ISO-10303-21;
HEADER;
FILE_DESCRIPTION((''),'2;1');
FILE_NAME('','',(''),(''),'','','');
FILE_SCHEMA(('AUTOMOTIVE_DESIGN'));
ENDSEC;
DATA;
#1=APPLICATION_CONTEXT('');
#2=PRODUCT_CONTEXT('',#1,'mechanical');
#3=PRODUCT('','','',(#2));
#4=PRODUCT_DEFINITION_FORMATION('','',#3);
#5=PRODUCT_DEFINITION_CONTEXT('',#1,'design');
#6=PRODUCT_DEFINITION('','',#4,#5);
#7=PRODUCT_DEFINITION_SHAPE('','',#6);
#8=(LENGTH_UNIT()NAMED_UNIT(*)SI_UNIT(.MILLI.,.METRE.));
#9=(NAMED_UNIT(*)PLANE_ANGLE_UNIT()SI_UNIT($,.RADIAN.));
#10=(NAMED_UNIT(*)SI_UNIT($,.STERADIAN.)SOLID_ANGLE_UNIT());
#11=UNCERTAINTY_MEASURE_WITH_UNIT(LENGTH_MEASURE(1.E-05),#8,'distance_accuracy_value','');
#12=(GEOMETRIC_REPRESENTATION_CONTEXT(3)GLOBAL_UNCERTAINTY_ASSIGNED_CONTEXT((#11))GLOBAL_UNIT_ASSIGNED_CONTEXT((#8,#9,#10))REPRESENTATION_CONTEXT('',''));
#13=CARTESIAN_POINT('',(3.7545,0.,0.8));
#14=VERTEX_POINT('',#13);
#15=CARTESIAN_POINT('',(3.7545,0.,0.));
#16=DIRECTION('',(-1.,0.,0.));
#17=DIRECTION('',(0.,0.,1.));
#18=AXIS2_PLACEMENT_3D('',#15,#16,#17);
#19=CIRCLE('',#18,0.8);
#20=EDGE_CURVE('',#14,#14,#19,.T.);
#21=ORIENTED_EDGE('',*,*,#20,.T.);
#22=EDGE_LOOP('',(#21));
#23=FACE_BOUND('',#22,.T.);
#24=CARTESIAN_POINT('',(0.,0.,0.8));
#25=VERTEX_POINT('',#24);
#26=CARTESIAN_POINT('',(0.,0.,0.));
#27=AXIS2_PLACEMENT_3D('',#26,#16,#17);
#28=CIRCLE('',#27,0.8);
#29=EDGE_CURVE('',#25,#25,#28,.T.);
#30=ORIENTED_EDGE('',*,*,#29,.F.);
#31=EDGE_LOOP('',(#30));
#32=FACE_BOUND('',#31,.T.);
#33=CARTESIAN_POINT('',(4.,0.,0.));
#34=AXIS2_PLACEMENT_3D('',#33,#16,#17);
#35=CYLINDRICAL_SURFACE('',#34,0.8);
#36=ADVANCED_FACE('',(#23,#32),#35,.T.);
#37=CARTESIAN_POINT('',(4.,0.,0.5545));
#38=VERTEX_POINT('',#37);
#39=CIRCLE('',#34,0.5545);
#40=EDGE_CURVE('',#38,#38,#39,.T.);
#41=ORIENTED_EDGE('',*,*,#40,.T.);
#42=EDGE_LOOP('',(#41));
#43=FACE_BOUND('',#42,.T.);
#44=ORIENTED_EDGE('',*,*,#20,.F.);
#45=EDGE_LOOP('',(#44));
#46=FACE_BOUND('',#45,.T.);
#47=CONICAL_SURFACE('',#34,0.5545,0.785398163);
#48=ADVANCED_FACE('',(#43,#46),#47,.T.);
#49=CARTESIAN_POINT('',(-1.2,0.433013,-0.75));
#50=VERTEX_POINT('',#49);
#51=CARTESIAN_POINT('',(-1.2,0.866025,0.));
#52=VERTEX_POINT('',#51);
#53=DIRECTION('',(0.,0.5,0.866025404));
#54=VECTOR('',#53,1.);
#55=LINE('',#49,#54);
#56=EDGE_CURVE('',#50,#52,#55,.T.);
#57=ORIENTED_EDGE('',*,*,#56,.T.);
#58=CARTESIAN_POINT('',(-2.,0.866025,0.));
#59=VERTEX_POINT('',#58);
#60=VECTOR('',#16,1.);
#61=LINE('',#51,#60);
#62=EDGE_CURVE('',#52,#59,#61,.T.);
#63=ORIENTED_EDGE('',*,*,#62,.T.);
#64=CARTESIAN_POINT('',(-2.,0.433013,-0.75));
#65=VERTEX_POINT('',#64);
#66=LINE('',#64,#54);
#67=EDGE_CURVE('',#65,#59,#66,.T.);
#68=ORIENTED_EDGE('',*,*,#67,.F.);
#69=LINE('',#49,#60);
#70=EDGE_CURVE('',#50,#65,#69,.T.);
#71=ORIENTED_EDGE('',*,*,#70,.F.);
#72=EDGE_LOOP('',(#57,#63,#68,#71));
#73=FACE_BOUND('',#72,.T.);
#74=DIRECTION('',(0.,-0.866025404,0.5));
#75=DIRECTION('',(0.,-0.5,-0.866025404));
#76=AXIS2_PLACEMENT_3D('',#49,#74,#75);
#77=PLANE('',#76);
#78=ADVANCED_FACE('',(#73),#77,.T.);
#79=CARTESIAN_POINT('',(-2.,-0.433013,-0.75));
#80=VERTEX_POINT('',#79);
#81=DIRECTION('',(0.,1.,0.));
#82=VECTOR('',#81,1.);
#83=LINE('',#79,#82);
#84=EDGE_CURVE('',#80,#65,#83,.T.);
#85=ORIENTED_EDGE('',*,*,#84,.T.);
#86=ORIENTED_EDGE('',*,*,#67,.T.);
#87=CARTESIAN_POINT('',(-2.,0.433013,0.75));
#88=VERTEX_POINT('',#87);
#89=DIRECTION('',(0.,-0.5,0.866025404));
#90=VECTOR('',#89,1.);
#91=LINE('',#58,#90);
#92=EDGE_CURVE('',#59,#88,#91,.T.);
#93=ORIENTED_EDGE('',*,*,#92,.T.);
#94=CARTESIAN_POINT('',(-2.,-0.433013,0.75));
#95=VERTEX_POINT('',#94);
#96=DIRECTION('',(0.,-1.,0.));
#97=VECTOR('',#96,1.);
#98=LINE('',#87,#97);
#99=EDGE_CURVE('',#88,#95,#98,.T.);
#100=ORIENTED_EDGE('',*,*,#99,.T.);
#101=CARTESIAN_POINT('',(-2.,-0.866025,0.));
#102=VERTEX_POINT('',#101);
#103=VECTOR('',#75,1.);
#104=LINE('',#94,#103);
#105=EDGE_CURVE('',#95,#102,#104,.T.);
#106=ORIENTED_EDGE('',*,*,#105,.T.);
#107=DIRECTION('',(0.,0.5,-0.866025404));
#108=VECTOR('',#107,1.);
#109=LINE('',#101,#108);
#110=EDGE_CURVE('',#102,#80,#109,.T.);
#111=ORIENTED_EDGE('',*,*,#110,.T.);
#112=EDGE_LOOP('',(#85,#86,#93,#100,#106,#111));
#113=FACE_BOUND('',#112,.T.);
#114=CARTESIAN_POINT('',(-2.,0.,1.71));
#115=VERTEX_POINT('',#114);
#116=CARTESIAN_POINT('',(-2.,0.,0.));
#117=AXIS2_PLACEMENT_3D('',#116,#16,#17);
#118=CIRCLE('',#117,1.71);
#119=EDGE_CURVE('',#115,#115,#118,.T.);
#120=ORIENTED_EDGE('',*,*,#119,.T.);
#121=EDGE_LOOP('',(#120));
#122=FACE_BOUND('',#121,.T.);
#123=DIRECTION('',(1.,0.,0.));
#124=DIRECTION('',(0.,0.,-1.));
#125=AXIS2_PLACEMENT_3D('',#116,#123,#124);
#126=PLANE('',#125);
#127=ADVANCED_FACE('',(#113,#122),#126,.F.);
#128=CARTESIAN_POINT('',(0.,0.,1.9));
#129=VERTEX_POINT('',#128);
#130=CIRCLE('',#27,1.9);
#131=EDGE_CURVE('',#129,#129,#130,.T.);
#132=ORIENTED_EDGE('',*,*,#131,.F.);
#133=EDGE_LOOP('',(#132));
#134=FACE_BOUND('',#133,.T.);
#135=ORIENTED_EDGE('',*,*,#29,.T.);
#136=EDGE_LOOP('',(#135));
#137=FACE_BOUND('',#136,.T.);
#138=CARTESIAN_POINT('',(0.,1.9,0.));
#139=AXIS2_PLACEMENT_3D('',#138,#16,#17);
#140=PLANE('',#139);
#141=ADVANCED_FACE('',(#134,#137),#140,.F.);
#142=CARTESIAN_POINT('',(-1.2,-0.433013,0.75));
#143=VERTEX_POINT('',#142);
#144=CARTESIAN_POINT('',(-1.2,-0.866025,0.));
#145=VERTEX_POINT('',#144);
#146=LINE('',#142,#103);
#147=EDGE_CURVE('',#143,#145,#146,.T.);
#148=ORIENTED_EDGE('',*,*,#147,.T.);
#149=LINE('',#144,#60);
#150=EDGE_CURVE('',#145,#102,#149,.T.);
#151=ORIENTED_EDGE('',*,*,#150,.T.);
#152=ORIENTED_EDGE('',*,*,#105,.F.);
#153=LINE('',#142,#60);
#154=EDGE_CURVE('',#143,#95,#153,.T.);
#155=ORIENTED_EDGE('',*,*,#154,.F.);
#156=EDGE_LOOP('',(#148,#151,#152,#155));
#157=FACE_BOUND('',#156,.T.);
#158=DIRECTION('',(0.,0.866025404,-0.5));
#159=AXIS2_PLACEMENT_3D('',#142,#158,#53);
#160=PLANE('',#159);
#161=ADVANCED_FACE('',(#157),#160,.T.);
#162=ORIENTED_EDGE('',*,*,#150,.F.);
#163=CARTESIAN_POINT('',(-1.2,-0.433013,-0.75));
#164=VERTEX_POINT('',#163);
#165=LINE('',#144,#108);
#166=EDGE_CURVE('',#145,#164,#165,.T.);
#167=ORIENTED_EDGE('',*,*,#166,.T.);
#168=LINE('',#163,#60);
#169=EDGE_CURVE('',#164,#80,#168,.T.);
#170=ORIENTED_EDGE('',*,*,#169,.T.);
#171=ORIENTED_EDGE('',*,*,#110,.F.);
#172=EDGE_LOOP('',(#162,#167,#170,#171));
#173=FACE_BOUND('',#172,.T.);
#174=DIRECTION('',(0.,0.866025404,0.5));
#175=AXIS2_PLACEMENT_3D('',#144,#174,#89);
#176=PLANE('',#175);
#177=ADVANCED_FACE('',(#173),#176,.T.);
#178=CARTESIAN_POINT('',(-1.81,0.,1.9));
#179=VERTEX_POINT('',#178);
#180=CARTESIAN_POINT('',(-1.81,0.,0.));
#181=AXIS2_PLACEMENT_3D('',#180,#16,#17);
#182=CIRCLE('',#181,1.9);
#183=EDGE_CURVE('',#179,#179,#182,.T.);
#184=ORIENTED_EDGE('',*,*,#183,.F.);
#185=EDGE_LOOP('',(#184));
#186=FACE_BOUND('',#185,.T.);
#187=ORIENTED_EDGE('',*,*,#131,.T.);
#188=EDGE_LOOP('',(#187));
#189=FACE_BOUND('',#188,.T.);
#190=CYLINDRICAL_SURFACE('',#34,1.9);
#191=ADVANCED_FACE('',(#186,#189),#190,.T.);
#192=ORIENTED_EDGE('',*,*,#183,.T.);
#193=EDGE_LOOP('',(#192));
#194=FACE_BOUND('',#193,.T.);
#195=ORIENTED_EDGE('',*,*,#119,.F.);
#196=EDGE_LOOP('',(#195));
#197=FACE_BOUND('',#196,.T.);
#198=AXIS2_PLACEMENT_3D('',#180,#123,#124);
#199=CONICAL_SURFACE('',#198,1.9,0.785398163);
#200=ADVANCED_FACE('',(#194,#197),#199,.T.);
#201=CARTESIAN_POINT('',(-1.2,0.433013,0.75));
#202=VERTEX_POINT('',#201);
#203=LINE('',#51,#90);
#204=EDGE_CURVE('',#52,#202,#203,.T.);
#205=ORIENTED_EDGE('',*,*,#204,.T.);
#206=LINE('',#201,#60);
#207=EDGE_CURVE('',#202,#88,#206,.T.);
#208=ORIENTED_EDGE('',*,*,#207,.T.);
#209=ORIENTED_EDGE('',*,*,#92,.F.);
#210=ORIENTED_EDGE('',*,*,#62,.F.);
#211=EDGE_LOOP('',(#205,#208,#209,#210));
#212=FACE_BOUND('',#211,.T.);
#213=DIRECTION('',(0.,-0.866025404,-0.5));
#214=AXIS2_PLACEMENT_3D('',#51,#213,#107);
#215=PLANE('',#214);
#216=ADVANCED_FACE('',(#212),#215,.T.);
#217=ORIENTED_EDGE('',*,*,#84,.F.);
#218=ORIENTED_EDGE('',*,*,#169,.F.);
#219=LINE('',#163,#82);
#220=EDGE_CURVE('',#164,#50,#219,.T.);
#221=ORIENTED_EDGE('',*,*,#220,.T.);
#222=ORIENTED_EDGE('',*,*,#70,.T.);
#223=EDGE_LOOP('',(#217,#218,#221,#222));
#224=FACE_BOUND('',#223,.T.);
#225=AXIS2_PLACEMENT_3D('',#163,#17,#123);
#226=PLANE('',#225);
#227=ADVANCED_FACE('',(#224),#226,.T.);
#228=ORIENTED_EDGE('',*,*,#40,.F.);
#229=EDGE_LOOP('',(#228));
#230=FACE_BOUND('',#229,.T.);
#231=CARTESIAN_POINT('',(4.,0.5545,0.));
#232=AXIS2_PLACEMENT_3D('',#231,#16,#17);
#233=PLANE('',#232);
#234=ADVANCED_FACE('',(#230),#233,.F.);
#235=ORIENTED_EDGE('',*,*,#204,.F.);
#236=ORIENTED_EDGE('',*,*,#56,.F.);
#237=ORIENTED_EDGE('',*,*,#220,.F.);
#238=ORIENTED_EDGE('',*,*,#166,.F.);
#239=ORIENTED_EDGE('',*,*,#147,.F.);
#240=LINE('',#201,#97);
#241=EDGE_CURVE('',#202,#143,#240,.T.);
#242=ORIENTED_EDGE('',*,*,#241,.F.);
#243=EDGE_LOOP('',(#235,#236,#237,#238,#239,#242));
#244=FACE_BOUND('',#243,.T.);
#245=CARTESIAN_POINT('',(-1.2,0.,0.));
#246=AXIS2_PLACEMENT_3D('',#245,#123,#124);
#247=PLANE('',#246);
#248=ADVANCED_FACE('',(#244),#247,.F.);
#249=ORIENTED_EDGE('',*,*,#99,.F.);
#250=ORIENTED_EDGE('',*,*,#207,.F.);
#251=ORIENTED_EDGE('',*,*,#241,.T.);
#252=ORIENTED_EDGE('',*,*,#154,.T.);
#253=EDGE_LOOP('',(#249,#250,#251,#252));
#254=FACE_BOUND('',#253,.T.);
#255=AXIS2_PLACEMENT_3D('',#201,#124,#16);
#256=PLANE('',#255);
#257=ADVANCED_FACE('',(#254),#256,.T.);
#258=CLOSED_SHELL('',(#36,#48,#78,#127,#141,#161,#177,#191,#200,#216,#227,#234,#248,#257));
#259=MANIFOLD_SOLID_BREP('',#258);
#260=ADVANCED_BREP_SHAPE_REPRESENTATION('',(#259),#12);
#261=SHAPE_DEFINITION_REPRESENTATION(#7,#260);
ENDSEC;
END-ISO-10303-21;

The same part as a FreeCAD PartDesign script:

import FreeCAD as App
import Part
import Sketcher
Q = App.Units.Quantity


def add_polygon(sketch, points):
    """Adds a closed chain of lines whose ends are joined by coincident constraints."""
    first, n = sketch.GeometryCount, len(points)
    for a, b in zip(points, points[1:] + points[:1]):
        sketch.addGeometry(Part.LineSegment(App.Vector(*a, 0), App.Vector(*b, 0)), False)
    for i in range(n):
        sketch.addConstraint(Sketcher.Constraint("Coincident", first + i, 2, first + (i + 1) % n, 1))

doc = App.newDocument("Part")
body = doc.addObject("PartDesign::Body", "Body")

sketch1 = body.newObject("Sketcher::SketchObject", "Sketch")
sketch1.AttachmentSupport = (doc.getObject("XY_Plane"), [""])
sketch1.MapMode = "FlatFace"
add_polygon(sketch1, [(-2, 1.71), (-2, 0), (4, 0), (4, 0.5545), (3.7545, 0.8), (0, 0.8), (0, 1.9), (-1.81, 1.9)])
sketch1.addConstraint(Sketcher.Constraint("Vertical", 0))
sketch1.addConstraint(Sketcher.Constraint("Horizontal", 1))
sketch1.addConstraint(Sketcher.Constraint("Vertical", 2))
sketch1.addConstraint(Sketcher.Constraint("Horizontal", 4))
sketch1.addConstraint(Sketcher.Constraint("Vertical", 5))
sketch1.addConstraint(Sketcher.Constraint("Horizontal", 6))
sketch1.addConstraint(Sketcher.Constraint("PointOnObject", 0, 2, -1))
sketch1.addConstraint(Sketcher.Constraint("PointOnObject", 4, 2, -2))
sketch1.addConstraint(Sketcher.Constraint("Perpendicular", 3, 7))
sketch1.addConstraint(Sketcher.Constraint("DistanceX", 1, 1, 1, 2, 6.0))
sketch1.addConstraint(Sketcher.Constraint("Angle", 3, Q("135 deg")))
sketch1.addConstraint(Sketcher.Constraint("DistanceY", 5, 1, 5, 2, 1.1))
sketch1.addConstraint(Sketcher.Constraint("DistanceX", 0, 2, -1, 1, 2.0))
sketch1.addConstraint(Sketcher.Constraint("DistanceX", 6, 2, 6, 1, 1.81))
sketch1.addConstraint(Sketcher.Constraint("DistanceY", 0, 2, 0, 1, 1.71))
sketch1.addConstraint(Sketcher.Constraint("DistanceX", 4, 2, 4, 1, 3.7545))
revolution = body.newObject("PartDesign::Revolution", "Revolution")
revolution.Profile = sketch1
revolution.ReferenceAxis = (sketch1, ["H_Axis"])
revolution.Angle = 360

sketch2 = body.newObject("Sketcher::SketchObject", "Sketch001")
sketch2.AttachmentSupport = (doc.getObject("YZ_Plane"), [""])
sketch2.MapMode = "FlatFace"
sketch2.AttachmentOffset = App.Placement(App.Vector(0, 0, -2), App.Rotation())
add_polygon(sketch2, [(-0.433013, 0.75), (-0.866025, 0), (-0.433013, -0.75), (0.433013, -0.75), (0.866025, 0), (0.433013, 0.75)])
sketch2.addConstraint(Sketcher.Constraint("Horizontal", 2))
sketch2.addConstraint(Sketcher.Constraint("Horizontal", 5))
sketch2.addConstraint(Sketcher.Constraint("Symmetric", 0, 2, 3, 2, -1, 1))
sketch2.addConstraint(Sketcher.Constraint("Symmetric", 1, 2, 4, 2, -1, 1))
sketch2.addConstraint(Sketcher.Constraint("PointOnObject", 0, 2, -1))
sketch2.addConstraint(Sketcher.Constraint("Parallel", 0, 3))
sketch2.addConstraint(Sketcher.Constraint("Vertical", 2, 2, 4, 2))
sketch2.addConstraint(Sketcher.Constraint("Angle", 0, Q("-120 deg")))
sketch2.addConstraint(Sketcher.Constraint("DistanceY", 2, 2, 4, 2, 1.5))
sketch2.addConstraint(Sketcher.Constraint("DistanceX", 2, 1, 2, 2, 0.866025))
pocket1 = body.newObject("PartDesign::Pocket", "Pocket")
pocket1.Profile = sketch2
pocket1.Length = 0.8
pocket1.Reversed = True

doc.recompute()
